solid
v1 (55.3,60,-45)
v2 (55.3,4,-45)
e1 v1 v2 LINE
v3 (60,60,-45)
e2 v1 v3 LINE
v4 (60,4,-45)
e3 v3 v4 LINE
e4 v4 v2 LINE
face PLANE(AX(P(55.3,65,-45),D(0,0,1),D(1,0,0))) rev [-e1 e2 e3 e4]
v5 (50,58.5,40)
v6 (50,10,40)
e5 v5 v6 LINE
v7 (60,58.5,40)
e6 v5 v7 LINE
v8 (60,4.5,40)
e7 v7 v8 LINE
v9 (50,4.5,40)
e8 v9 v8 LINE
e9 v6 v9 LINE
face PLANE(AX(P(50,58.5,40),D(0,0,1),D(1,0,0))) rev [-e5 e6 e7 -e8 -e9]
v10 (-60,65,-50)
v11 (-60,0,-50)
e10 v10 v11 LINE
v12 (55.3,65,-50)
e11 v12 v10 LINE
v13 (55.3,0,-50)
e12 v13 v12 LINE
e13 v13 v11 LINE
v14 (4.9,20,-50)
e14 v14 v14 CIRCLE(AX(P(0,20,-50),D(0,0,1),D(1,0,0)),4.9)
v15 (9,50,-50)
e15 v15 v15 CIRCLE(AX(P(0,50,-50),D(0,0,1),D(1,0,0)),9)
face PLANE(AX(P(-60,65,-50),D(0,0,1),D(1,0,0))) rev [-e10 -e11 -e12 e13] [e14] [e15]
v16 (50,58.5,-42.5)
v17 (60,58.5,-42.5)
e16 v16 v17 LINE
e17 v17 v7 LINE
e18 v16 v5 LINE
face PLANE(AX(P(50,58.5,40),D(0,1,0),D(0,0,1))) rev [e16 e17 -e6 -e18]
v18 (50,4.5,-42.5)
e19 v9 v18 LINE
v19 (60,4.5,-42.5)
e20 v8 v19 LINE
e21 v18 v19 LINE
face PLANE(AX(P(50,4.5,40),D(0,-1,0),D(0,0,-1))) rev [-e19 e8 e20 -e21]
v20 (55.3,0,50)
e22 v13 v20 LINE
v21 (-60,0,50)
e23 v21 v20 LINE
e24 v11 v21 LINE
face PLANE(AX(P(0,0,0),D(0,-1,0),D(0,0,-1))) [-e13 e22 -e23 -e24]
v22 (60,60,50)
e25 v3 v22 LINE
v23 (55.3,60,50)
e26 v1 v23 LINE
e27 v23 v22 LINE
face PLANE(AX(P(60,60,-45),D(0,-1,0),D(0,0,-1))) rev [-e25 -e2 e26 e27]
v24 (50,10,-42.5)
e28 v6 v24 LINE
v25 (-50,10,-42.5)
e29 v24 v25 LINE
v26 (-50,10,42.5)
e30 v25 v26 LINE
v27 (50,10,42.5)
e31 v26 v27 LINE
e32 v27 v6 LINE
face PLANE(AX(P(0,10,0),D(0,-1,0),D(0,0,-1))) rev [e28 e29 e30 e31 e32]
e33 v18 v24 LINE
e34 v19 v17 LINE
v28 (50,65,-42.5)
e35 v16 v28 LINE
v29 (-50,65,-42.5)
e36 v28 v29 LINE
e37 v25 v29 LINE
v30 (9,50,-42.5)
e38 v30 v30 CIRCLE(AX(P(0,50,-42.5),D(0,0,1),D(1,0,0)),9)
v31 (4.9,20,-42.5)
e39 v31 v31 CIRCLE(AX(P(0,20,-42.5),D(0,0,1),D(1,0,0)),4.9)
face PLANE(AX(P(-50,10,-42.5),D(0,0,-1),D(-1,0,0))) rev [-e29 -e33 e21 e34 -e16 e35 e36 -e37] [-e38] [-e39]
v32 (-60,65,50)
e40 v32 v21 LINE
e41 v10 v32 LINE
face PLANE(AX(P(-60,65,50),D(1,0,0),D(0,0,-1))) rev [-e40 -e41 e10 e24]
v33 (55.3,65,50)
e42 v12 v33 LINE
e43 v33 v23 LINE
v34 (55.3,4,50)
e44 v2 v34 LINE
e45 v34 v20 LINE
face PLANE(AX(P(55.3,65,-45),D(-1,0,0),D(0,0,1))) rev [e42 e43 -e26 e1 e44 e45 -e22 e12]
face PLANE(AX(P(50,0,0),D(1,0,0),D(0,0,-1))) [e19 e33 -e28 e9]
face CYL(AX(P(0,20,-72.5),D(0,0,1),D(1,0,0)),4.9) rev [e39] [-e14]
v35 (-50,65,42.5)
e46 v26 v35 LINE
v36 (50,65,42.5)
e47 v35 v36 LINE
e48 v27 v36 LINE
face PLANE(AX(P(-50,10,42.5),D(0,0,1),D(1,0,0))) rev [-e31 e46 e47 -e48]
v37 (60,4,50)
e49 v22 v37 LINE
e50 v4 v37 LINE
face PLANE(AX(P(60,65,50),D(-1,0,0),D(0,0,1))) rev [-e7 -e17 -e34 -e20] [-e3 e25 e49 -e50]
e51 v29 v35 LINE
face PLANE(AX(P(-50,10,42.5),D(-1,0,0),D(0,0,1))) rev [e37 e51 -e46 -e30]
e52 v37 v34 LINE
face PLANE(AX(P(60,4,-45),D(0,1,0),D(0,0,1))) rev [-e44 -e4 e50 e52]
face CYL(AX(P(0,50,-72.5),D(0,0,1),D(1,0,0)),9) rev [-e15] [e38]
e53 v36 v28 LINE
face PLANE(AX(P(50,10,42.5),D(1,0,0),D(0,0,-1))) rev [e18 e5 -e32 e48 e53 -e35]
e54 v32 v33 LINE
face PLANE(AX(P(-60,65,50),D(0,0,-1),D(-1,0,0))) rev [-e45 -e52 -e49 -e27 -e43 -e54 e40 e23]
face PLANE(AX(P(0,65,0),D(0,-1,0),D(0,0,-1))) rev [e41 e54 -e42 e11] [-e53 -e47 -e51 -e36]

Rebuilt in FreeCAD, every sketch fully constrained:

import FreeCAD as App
import Part
import Sketcher
Q = App.Units.Quantity

doc = App.newDocument("Part")
body = doc.addObject("PartDesign::Body", "Body")

sketch1 = doc.addObject("Sketcher::SketchObject", "Sketch")
body.addObject(sketch1)
sketch1.AttachmentSupport = (doc.XZ_Plane, [""])
sketch1.MapMode = "FlatFace"
sketch1.addGeometry([
    Part.LineSegment(App.Vector(-60, -50, 0), App.Vector(-60, 50, 0)),
    Part.LineSegment(App.Vector(-60, 50, 0), App.Vector(60, 50, 0)),
    Part.LineSegment(App.Vector(60, 50, 0), App.Vector(60, -50, 0)),
    Part.LineSegment(App.Vector(60, -50, 0), App.Vector(-60, -50, 0)),
], False)
sketch1.addConstraint([
    Sketcher.Constraint("Coincident", 0, 2, 1, 1),
    Sketcher.Constraint("Coincident", 1, 2, 2, 1),
    Sketcher.Constraint("Coincident", 2, 2, 3, 1),
    Sketcher.Constraint("Coincident", 3, 2, 0, 1),
    Sketcher.Constraint("Vertical", 0),
    Sketcher.Constraint("Horizontal", 1),
    Sketcher.Constraint("Vertical", 2),
    Sketcher.Constraint("Horizontal", 3),
    Sketcher.Constraint("Symmetric", 0, 2, 2, 2, -1, 1),
    Sketcher.Constraint("DistanceX", 1, 1, 1, 2, Q("120 mm")),
    Sketcher.Constraint("DistanceY", 0, 1, 0, 2, Q("100 mm")),
])
pad1 = doc.addObject("PartDesign::Pad", "Pad")
body.addObject(pad1)
pad1.Profile = sketch1
pad1.Length = 65
pad1.Reversed = True

sketch2 = doc.addObject("Sketcher::SketchObject", "Sketch001")
body.addObject(sketch2)
sketch2.AttachmentSupport = (doc.XZ_Plane, [""])
sketch2.MapMode = "FlatFace"
sketch2.AttachmentOffset = App.Placement(App.Vector(0, 0, -65), App.Rotation())
sketch2.addGeometry([
    Part.LineSegment(App.Vector(-50, -42.5, 0), App.Vector(-50, 42.5, 0)),
    Part.LineSegment(App.Vector(-50, 42.5, 0), App.Vector(50, 42.5, 0)),
    Part.LineSegment(App.Vector(50, 42.5, 0), App.Vector(50, -42.5, 0)),
    Part.LineSegment(App.Vector(50, -42.5, 0), App.Vector(-50, -42.5, 0)),
], False)
sketch2.addConstraint([
    Sketcher.Constraint("Coincident", 0, 2, 1, 1),
    Sketcher.Constraint("Coincident", 1, 2, 2, 1),
    Sketcher.Constraint("Coincident", 2, 2, 3, 1),
    Sketcher.Constraint("Coincident", 3, 2, 0, 1),
    Sketcher.Constraint("Vertical", 0),
    Sketcher.Constraint("Horizontal", 1),
    Sketcher.Constraint("Vertical", 2),
    Sketcher.Constraint("Horizontal", 3),
    Sketcher.Constraint("Symmetric", 0, 2, 2, 2, -1, 1),
    Sketcher.Constraint("DistanceX", 1, 1, 1, 2, Q("100 mm")),
    Sketcher.Constraint("DistanceY", 0, 1, 0, 2, Q("85 mm")),
])
pocket1 = doc.addObject("PartDesign::Pocket", "Pocket")
body.addObject(pocket1)
pocket1.Profile = sketch2
pocket1.Length = 55
pocket1.Reversed = True

sketch3 = doc.addObject("Sketcher::SketchObject", "Sketch002")
body.addObject(sketch3)
sketch3.AttachmentSupport = (doc.XY_Plane, [""])
sketch3.MapMode = "FlatFace"
sketch3.AttachmentOffset = App.Placement(App.Vector(0, 0, -42.5), App.Rotation())
sketch3.addGeometry([
    Part.Circle(App.Vector(0, 50, 0), App.Vector(0, 0, 1), 9),
    Part.Circle(App.Vector(0, 20, 0), App.Vector(0, 0, 1), 4.9),
], False)
sketch3.addConstraint([
    Sketcher.Constraint("PointOnObject", 0, 3, -2),
    Sketcher.Constraint("PointOnObject", 1, 3, -2),
    Sketcher.Constraint("Diameter", 0, Q("18 mm")),
    Sketcher.Constraint("Diameter", 1, Q("9.8 mm")),
    Sketcher.Constraint("DistanceY", -1, 1, 0, 3, Q("50 mm")),
    Sketcher.Constraint("DistanceY", -1, 1, 1, 3, Q("20 mm")),
])
pocket2 = doc.addObject("PartDesign::Pocket", "Pocket001")
body.addObject(pocket2)
pocket2.Profile = sketch3
pocket2.Length = 30

sketch4 = doc.addObject("Sketcher::SketchObject", "Sketch003")
body.addObject(sketch4)
sketch4.AttachmentSupport = (doc.XY_Plane, [""])
sketch4.MapMode = "FlatFace"
sketch4.AttachmentOffset = App.Placement(App.Vector(0, 0, 50), App.Rotation())
sketch4.addGeometry([
    Part.LineSegment(App.Vector(55.3, 4, 0), App.Vector(55.3, 0, 0)),
    Part.LineSegment(App.Vector(55.3, 0, 0), App.Vector(60, 0, 0)),
    Part.LineSegment(App.Vector(60, 0, 0), App.Vector(60, 4, 0)),
    Part.LineSegment(App.Vector(60, 4, 0), App.Vector(55.3, 4, 0)),
    Part.LineSegment(App.Vector(55.3, 65, 0), App.Vector(55.3, 60, 0)),
    Part.LineSegment(App.Vector(55.3, 60, 0), App.Vector(60, 60, 0)),
    Part.LineSegment(App.Vector(60, 60, 0), App.Vector(60, 65, 0)),
    Part.LineSegment(App.Vector(60, 65, 0), App.Vector(55.3, 65, 0)),
], False)
sketch4.addConstraint([
    Sketcher.Constraint("Coincident", 0, 2, 1, 1),
    Sketcher.Constraint("Coincident", 1, 2, 2, 1),
    Sketcher.Constraint("Coincident", 2, 2, 3, 1),
    Sketcher.Constraint("Coincident", 3, 2, 0, 1),
    Sketcher.Constraint("Coincident", 4, 2, 5, 1),
    Sketcher.Constraint("Coincident", 5, 2, 6, 1),
    Sketcher.Constraint("Coincident", 6, 2, 7, 1),
    Sketcher.Constraint("Coincident", 7, 2, 4, 1),
    Sketcher.Constraint("Vertical", 0),
    Sketcher.Constraint("Horizontal", 1),
    Sketcher.Constraint("Vertical", 2),
    Sketcher.Constraint("Horizontal", 3),
    Sketcher.Constraint("Vertical", 4),
    Sketcher.Constraint("Horizontal", 5),
    Sketcher.Constraint("Vertical", 6),
    Sketcher.Constraint("Horizontal", 7),
    Sketcher.Constraint("PointOnObject", 0, 2, -1),
    Sketcher.Constraint("Vertical", 3, 2, 4, 2),
    Sketcher.Constraint("Vertical", 2, 2, 5, 2),
    Sketcher.Constraint("DistanceY", 0, 2, 0, 1, Q("4 mm")),
    Sketcher.Constraint("DistanceY", 4, 2, 4, 1, Q("5 mm")),
    Sketcher.Constraint("DistanceX", 1, 1, 1, 2, Q("4.7 mm")),
    Sketcher.Constraint("DistanceX", -1, 1, 1, 2, Q("60 mm")),
    Sketcher.Constraint("DistanceY", -1, 1, 4, 2, Q("60 mm")),
])
pocket3 = doc.addObject("PartDesign::Pocket", "Pocket002")
body.addObject(pocket3)
pocket3.Profile = sketch4
pocket3.Length = 95

sketch5 = doc.addObject("Sketcher::SketchObject", "Sketch004")
body.addObject(sketch5)
sketch5.AttachmentSupport = (doc.YZ_Plane, [""])
sketch5.MapMode = "FlatFace"
sketch5.AttachmentOffset = App.Placement(App.Vector(0, 0, 60), App.Rotation())
sketch5.addGeometry([
    Part.LineSegment(App.Vector(65, -45, 0), App.Vector(0, -45, 0)),
    Part.LineSegment(App.Vector(0, -45, 0), App.Vector(0, -50, 0)),
    Part.LineSegment(App.Vector(0, -50, 0), App.Vector(65, -50, 0)),
    Part.LineSegment(App.Vector(65, -50, 0), App.Vector(65, -45, 0)),
], False)
sketch5.addConstraint([
    Sketcher.Constraint("Coincident", 0, 2, 1, 1),
    Sketcher.Constraint("Coincident", 1, 2, 2, 1),
    Sketcher.Constraint("Coincident", 2, 2, 3, 1),
    Sketcher.Constraint("Coincident", 3, 2, 0, 1),
    Sketcher.Constraint("Horizontal", 0),
    Sketcher.Constraint("Vertical", 1),
    Sketcher.Constraint("Horizontal", 2),
    Sketcher.Constraint("Vertical", 3),
    Sketcher.Constraint("PointOnObject", 0, 2, -2),
    Sketcher.Constraint("DistanceX", 0, 2, 0, 1, Q("65 mm")),
    Sketcher.Constraint("DistanceY", 1, 2, 1, 1, Q("5 mm")),
    Sketcher.Constraint("DistanceY", 0, 2, -1, 1, Q("45 mm")),
])
pocket4 = doc.addObject("PartDesign::Pocket", "Pocket003")
body.addObject(pocket4)
pocket4.Profile = sketch5
pocket4.Length = 4.7

sketch6 = doc.addObject("Sketcher::SketchObject", "Sketch005")
body.addObject(sketch6)
sketch6.AttachmentSupport = (doc.YZ_Plane, [""])
sketch6.MapMode = "FlatFace"
sketch6.AttachmentOffset = App.Placement(App.Vector(0, 0, 60), App.Rotation())
sketch6.addGeometry([
    Part.LineSegment(App.Vector(58.5, 40, 0), App.Vector(4.5, 40, 0)),
    Part.LineSegment(App.Vector(4.5, 40, 0), App.Vector(4.5, -42.5, 0)),
    Part.LineSegment(App.Vector(4.5, -42.5, 0), App.Vector(58.5, -42.5, 0)),
    Part.LineSegment(App.Vector(58.5, -42.5, 0), App.Vector(58.5, 40, 0)),
], False)
sketch6.addConstraint([
    Sketcher.Constraint("Coincident", 0, 2, 1, 1),
    Sketcher.Constraint("Coincident", 1, 2, 2, 1),
    Sketcher.Constraint("Coincident", 2, 2, 3, 1),
    Sketcher.Constraint("Coincident", 3, 2, 0, 1),
    Sketcher.Constraint("Horizontal", 0),
    Sketcher.Constraint("Vertical", 1),
    Sketcher.Constraint("Horizontal", 2),
    Sketcher.Constraint("Vertical", 3),
    Sketcher.Constraint("DistanceX", 0, 2, 0, 1, Q("54 mm")),
    Sketcher.Constraint("DistanceY", 1, 2, 1, 1, Q("82.5 mm")),
    Sketcher.Constraint("DistanceY", -1, 1, 0, 2, Q("40 mm")),
    Sketcher.Constraint("DistanceX", -1, 1, 0, 2, Q("4.5 mm")),
])
pocket5 = doc.addObject("PartDesign::Pocket", "Pocket004")
body.addObject(pocket5)
pocket5.Profile = sketch6
pocket5.Length = 10

doc.recompute()
